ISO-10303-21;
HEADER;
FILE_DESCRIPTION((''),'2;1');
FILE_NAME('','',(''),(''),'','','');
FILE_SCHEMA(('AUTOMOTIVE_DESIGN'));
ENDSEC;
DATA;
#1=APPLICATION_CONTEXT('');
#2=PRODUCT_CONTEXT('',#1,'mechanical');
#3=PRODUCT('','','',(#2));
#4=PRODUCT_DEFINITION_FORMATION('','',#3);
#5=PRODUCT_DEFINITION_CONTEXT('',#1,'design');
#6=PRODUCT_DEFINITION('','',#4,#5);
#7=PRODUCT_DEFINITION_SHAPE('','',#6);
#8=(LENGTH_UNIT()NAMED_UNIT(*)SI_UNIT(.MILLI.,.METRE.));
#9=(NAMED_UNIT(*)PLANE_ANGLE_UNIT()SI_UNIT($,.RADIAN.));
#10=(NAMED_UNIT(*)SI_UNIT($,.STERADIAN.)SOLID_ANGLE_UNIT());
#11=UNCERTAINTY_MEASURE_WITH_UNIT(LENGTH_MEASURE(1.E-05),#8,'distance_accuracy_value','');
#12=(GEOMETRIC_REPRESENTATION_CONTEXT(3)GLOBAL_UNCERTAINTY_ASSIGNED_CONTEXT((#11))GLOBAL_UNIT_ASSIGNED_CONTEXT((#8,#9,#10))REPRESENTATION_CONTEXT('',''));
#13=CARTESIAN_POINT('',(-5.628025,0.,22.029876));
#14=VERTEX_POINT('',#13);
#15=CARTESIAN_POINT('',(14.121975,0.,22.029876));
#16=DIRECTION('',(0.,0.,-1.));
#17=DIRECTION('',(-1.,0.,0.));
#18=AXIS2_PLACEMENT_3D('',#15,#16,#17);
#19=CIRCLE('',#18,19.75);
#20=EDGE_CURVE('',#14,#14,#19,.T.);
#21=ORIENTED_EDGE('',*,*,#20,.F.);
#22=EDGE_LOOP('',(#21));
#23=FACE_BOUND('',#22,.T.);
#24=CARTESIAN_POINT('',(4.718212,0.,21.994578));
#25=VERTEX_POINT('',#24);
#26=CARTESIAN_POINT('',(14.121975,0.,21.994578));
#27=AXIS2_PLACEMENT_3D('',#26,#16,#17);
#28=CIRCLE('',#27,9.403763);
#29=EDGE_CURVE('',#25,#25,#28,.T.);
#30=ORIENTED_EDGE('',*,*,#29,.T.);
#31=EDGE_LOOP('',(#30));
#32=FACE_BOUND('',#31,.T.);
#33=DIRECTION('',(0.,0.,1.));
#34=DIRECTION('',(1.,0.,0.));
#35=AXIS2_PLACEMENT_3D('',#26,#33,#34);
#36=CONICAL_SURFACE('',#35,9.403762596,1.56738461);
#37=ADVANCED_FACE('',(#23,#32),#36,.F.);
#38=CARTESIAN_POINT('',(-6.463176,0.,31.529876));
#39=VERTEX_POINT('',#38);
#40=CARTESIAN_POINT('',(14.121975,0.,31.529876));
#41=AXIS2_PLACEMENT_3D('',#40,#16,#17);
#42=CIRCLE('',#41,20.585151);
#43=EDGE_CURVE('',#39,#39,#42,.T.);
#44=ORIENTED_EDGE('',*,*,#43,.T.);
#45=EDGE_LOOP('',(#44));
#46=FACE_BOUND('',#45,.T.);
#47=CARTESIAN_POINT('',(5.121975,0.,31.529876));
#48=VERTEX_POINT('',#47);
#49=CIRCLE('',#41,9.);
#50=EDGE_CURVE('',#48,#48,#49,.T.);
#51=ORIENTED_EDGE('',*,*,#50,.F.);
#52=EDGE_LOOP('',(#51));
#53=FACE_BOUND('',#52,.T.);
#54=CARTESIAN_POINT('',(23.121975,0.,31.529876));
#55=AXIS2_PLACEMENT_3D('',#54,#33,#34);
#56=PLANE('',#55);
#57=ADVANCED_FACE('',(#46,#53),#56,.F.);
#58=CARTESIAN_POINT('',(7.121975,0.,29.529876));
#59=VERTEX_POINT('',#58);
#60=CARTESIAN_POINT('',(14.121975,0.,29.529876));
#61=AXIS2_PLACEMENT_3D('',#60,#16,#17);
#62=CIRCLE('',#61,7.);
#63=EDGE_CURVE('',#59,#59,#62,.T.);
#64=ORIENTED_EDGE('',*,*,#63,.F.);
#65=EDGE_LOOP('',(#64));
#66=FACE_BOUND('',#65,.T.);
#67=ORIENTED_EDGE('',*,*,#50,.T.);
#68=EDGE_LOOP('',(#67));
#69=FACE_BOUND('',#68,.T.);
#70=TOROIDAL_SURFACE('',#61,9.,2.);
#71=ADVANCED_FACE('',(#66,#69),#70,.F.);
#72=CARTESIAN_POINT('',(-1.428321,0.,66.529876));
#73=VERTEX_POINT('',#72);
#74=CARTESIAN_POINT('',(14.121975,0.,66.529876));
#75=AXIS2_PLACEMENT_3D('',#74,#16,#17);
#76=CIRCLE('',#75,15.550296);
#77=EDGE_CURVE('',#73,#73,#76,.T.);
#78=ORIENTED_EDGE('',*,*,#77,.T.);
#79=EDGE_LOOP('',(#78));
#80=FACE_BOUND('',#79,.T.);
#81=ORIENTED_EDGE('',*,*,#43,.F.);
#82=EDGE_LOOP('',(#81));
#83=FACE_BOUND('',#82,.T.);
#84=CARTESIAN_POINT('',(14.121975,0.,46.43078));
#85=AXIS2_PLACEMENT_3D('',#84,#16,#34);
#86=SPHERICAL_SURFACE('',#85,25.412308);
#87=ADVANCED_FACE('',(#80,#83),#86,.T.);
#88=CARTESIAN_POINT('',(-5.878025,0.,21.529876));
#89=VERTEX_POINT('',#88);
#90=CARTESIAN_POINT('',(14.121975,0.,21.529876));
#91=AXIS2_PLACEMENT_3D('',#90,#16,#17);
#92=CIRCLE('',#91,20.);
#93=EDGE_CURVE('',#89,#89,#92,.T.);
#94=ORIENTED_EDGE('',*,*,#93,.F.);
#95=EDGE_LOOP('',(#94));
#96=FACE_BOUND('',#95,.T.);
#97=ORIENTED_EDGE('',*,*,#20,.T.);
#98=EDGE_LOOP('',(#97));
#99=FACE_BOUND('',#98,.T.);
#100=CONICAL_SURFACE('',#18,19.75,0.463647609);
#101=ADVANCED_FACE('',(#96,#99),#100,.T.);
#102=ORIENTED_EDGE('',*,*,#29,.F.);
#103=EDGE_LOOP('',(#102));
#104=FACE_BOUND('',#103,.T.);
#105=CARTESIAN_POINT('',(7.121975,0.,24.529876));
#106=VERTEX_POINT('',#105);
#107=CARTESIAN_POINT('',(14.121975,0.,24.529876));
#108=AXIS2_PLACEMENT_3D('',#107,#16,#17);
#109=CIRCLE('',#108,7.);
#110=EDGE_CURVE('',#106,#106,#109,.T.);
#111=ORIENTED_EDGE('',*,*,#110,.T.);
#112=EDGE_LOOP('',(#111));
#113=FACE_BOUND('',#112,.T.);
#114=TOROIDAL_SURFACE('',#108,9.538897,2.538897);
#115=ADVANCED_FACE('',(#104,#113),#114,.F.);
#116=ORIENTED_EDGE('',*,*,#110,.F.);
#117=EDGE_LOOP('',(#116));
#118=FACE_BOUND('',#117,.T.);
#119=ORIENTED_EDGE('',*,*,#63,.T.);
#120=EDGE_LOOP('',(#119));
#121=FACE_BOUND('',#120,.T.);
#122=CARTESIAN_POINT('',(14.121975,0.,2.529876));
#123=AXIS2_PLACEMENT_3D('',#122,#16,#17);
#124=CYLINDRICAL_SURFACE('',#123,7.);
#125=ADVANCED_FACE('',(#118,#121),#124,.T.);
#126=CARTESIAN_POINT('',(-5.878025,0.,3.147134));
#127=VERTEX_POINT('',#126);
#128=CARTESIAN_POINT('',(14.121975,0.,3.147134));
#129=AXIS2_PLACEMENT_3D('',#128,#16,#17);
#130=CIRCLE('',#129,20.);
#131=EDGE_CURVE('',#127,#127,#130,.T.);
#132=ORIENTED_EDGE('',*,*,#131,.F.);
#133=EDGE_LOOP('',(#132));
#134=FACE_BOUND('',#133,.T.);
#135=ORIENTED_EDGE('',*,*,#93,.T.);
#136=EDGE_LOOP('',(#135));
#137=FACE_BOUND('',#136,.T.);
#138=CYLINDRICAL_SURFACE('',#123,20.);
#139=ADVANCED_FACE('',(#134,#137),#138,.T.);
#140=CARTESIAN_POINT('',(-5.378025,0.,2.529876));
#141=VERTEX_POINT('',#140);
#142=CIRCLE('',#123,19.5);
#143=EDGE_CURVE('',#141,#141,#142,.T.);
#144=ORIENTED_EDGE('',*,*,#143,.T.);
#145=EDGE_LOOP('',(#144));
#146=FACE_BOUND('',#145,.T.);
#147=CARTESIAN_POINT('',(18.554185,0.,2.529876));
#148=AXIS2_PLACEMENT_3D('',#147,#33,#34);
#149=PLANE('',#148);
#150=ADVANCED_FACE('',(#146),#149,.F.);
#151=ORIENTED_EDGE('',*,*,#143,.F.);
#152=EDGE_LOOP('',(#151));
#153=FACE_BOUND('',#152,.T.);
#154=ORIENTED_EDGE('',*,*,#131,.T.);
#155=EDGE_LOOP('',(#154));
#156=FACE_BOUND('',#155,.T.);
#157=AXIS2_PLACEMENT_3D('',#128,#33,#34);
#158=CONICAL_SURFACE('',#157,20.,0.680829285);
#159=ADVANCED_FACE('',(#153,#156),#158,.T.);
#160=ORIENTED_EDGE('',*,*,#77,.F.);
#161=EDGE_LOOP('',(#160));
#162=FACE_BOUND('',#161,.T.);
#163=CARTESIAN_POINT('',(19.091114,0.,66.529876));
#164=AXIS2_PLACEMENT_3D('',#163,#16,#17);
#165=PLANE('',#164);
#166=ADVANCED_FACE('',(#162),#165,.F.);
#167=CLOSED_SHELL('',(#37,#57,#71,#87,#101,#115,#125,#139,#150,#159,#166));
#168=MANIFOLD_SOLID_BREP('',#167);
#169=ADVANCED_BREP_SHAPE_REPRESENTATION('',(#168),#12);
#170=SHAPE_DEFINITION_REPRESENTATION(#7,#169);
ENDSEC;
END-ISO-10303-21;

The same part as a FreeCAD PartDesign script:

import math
import FreeCAD as App
import Part
import Sketcher
Q = App.Units.Quantity

doc = App.newDocument("Part")
body = doc.addObject("PartDesign::Body", "Body")

# Sketch on XZ plane
sketch1 = body.newObject("Sketcher::SketchObject", "Sketch")
sketch1.AttachmentSupport = (doc.getObject("XZ_Plane"), [""])
sketch1.MapMode = "FlatFace"
sketch1.addGeometry(Part.LineSegment(App.Vector(34.1, 3.1, 0), App.Vector(33.6, 2.5, 0)), False)
sketch1.addGeometry(Part.LineSegment(App.Vector(33.6, 2.5, 0), App.Vector(14.1, 2.5, 0)), False)
sketch1.addGeometry(Part.LineSegment(App.Vector(14.1, 2.5, 0), App.Vector(14.1, 66.5, 0)), False)
sketch1.addGeometry(Part.LineSegment(App.Vector(14.1, 66.5, 0), App.Vector(29.7, 66.5, 0)), False)
sketch1.addGeometry(Part.ArcOfCircle(Part.Circle(App.Vector(14.1, 46.4, 0), App.Vector(0, 0, 1), 25.4), math.radians(-36), math.radians(52)), False)
sketch1.addGeometry(Part.LineSegment(App.Vector(34.7, 31.5, 0), App.Vector(23.1, 31.5, 0)), False)
sketch1.addGeometry(Part.ArcOfCircle(Part.Circle(App.Vector(23.1, 29.5, 0), App.Vector(0, 0, 1), 2), math.radians(90), math.radians(180)), False)
sketch1.addGeometry(Part.LineSegment(App.Vector(21.1, 29.5, 0), App.Vector(21.1, 24.5, 0)), False)
sketch1.addGeometry(Part.ArcOfCircle(Part.Circle(App.Vector(23.7, 24.5, 0), App.Vector(0, 0, 1), 2.5), math.radians(180), math.radians(267)), False)
sketch1.addGeometry(Part.LineSegment(App.Vector(23.5, 22, 0), App.Vector(33.9, 22, 0)), False)
sketch1.addGeometry(Part.LineSegment(App.Vector(33.9, 22, 0), App.Vector(34.1, 21.5, 0)), False)
sketch1.addGeometry(Part.LineSegment(App.Vector(34.1, 21.5, 0), App.Vector(34.1, 3.1, 0)), False)
sketch1.addGeometry(Part.LineSegment(App.Vector(14.1, 2.5, 0), App.Vector(14.1, 66.5, 0)), True)  # axis
sketch1.addConstraint(Sketcher.Constraint("Coincident", 0, 2, 1, 1))
sketch1.addConstraint(Sketcher.Constraint("Coincident", 1, 2, 2, 1))
sketch1.addConstraint(Sketcher.Constraint("Coincident", 2, 2, 3, 1))
sketch1.addConstraint(Sketcher.Constraint("Coincident", 3, 2, 4, 2))
sketch1.addConstraint(Sketcher.Constraint("Coincident", 4, 1, 5, 1))
sketch1.addConstraint(Sketcher.Constraint("Tangent", 5, 2, 6, 1))
sketch1.addConstraint(Sketcher.Constraint("Tangent", 6, 2, 7, 1))
sketch1.addConstraint(Sketcher.Constraint("Tangent", 7, 2, 8, 1))
sketch1.addConstraint(Sketcher.Constraint("Coincident", 8, 2, 9, 1))
sketch1.addConstraint(Sketcher.Constraint("Coincident", 9, 2, 10, 1))
sketch1.addConstraint(Sketcher.Constraint("Coincident", 10, 2, 11, 1))
sketch1.addConstraint(Sketcher.Constraint("Coincident", 11, 2, 0, 1))
sketch1.addConstraint(Sketcher.Constraint("Horizontal", 1))
sketch1.addConstraint(Sketcher.Constraint("Vertical", 2))
sketch1.addConstraint(Sketcher.Constraint("Horizontal", 3))
sketch1.addConstraint(Sketcher.Constraint("Horizontal", 5))
sketch1.addConstraint(Sketcher.Constraint("Vertical", 7))
sketch1.addConstraint(Sketcher.Constraint("Vertical", 11))
sketch1.addConstraint(Sketcher.Constraint("Vertical", 12))
sketch1.addConstraint(Sketcher.Constraint("Coincident", 12, 1, 1, 2))
sketch1.addConstraint(Sketcher.Constraint("Horizontal", 3, 2, 12, 2))
sketch1.addConstraint(Sketcher.Constraint("Vertical", 4, 3, 1, 2))
sketch1.addConstraint(Sketcher.Constraint("Radius", 6, Q("2 mm")))
sketch1.addConstraint(Sketcher.Constraint("DistanceY", 2, 1, 2, 2, Q("64 mm")))
sketch1.addConstraint(Sketcher.Constraint("DistanceY", 7, 2, 7, 1, Q("5 mm")))
sketch1.addConstraint(Sketcher.Constraint("DistanceX", 1, 2, 1, 1, Q("19.5 mm")))
sketch1.addConstraint(Sketcher.Constraint("DistanceX", 4, 3, 6, 3, Q("9 mm")))
sketch1.addConstraint(Sketcher.Constraint("DistanceY", 0, 2, 8, 3, Q("22 mm")))
sketch1.addConstraint(Sketcher.Constraint("DistanceY", 10, 2, 4, 1, Q("10 mm")))
sketch1.addConstraint(Sketcher.Constraint("DistanceX", 7, 2, 10, 2, Q("13 mm")))
sketch1.addConstraint(Sketcher.Constraint("DistanceY", 9, 2, 4, 1, Q("9.5 mm")))
sketch1.addConstraint(Sketcher.Constraint("DistanceX", 7, 2, 9, 2, Q("12.75 mm")))
sketch1.addConstraint(Sketcher.Constraint("Radius", 4, Q("25.412308 mm")))
sketch1.addConstraint(Sketcher.Constraint("Radius", 8, Q("2.538897 mm")))
sketch1.addConstraint(Sketcher.Constraint("DistanceX", 5, 2, 5, 1, Q("11.585151 mm")))
sketch1.addConstraint(Sketcher.Constraint("DistanceY", 11, 2, 11, 1, Q("18.382742 mm")))
sketch1.addConstraint(Sketcher.Constraint("DistanceY", 8, 2, 8, 3, Q("2.535299 mm")))
sketch1.addConstraint(Sketcher.Constraint("DistanceY", -1, 1, 4, 3, Q("46.43078 mm")))
sketch1.addConstraint(Sketcher.Constraint("DistanceX", -1, 1, 3, 2, Q("29.672271 mm")))
revolution = body.newObject("PartDesign::Revolution", "Revolution")
revolution.Profile = sketch1
revolution.ReferenceAxis = (sketch1, ["Axis0"])
revolution.Angle = 360

doc.recompute()
